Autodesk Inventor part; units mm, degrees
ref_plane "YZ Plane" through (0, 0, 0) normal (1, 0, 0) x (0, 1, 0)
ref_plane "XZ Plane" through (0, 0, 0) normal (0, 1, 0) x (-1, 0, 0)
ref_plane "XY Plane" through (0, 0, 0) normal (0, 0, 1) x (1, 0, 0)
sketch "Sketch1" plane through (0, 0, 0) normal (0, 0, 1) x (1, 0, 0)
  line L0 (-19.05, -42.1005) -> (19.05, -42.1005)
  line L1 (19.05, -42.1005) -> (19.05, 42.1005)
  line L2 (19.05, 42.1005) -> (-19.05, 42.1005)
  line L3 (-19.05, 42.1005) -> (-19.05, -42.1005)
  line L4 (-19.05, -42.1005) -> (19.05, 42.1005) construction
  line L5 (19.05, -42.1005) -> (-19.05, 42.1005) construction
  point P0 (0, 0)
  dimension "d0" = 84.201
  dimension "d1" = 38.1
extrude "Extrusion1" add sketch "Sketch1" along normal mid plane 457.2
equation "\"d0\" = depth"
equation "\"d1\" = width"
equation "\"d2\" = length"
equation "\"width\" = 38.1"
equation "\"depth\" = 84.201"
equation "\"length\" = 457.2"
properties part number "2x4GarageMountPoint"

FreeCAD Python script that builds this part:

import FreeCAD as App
import Part
import Sketcher

V = App.Vector
Q = App.Units.Quantity

doc = App.newDocument("Part")
body = doc.addObject("PartDesign::Body", "Body")

# Sketch on XY plane
sketch1 = doc.addObject("Sketcher::SketchObject", "Sketch")
body.addObject(sketch1)
sketch1.AttachmentSupport = (doc.XY_Plane, [""])
sketch1.MapMode = "FlatFace"
sketch1.addGeometry([
    Part.LineSegment(V(-19, 42, 0), V(-19, -42, 0)),
    Part.LineSegment(V(-19, -42, 0), V(19, -42, 0)),
    Part.LineSegment(V(19, -42, 0), V(19, 42, 0)),
    Part.LineSegment(V(19, 42, 0), V(-19, 42, 0)),
], False)
sketch1.addConstraint([
    Sketcher.Constraint("Coincident", 0, 2, 1, 1),
    Sketcher.Constraint("Coincident", 1, 2, 2, 1),
    Sketcher.Constraint("Coincident", 2, 2, 3, 1),
    Sketcher.Constraint("Coincident", 3, 2, 0, 1),
    Sketcher.Constraint("Vertical", 0),
    Sketcher.Constraint("Horizontal", 1),
    Sketcher.Constraint("Vertical", 2),
    Sketcher.Constraint("Horizontal", 3),
    Sketcher.Constraint("Symmetric", 0, 2, 2, 2, -1, 1),
    Sketcher.Constraint("DistanceX", 1, 1, 1, 2, Q("1.5 in")),
    Sketcher.Constraint("DistanceY", 0, 2, 0, 1, Q("3.315 in")),
])
pad1 = doc.addObject("PartDesign::Pad", "Pad")
body.addObject(pad1)
pad1.Profile = sketch1
pad1.Length = Q("18 in")
pad1.Midplane = True

doc.recompute()
